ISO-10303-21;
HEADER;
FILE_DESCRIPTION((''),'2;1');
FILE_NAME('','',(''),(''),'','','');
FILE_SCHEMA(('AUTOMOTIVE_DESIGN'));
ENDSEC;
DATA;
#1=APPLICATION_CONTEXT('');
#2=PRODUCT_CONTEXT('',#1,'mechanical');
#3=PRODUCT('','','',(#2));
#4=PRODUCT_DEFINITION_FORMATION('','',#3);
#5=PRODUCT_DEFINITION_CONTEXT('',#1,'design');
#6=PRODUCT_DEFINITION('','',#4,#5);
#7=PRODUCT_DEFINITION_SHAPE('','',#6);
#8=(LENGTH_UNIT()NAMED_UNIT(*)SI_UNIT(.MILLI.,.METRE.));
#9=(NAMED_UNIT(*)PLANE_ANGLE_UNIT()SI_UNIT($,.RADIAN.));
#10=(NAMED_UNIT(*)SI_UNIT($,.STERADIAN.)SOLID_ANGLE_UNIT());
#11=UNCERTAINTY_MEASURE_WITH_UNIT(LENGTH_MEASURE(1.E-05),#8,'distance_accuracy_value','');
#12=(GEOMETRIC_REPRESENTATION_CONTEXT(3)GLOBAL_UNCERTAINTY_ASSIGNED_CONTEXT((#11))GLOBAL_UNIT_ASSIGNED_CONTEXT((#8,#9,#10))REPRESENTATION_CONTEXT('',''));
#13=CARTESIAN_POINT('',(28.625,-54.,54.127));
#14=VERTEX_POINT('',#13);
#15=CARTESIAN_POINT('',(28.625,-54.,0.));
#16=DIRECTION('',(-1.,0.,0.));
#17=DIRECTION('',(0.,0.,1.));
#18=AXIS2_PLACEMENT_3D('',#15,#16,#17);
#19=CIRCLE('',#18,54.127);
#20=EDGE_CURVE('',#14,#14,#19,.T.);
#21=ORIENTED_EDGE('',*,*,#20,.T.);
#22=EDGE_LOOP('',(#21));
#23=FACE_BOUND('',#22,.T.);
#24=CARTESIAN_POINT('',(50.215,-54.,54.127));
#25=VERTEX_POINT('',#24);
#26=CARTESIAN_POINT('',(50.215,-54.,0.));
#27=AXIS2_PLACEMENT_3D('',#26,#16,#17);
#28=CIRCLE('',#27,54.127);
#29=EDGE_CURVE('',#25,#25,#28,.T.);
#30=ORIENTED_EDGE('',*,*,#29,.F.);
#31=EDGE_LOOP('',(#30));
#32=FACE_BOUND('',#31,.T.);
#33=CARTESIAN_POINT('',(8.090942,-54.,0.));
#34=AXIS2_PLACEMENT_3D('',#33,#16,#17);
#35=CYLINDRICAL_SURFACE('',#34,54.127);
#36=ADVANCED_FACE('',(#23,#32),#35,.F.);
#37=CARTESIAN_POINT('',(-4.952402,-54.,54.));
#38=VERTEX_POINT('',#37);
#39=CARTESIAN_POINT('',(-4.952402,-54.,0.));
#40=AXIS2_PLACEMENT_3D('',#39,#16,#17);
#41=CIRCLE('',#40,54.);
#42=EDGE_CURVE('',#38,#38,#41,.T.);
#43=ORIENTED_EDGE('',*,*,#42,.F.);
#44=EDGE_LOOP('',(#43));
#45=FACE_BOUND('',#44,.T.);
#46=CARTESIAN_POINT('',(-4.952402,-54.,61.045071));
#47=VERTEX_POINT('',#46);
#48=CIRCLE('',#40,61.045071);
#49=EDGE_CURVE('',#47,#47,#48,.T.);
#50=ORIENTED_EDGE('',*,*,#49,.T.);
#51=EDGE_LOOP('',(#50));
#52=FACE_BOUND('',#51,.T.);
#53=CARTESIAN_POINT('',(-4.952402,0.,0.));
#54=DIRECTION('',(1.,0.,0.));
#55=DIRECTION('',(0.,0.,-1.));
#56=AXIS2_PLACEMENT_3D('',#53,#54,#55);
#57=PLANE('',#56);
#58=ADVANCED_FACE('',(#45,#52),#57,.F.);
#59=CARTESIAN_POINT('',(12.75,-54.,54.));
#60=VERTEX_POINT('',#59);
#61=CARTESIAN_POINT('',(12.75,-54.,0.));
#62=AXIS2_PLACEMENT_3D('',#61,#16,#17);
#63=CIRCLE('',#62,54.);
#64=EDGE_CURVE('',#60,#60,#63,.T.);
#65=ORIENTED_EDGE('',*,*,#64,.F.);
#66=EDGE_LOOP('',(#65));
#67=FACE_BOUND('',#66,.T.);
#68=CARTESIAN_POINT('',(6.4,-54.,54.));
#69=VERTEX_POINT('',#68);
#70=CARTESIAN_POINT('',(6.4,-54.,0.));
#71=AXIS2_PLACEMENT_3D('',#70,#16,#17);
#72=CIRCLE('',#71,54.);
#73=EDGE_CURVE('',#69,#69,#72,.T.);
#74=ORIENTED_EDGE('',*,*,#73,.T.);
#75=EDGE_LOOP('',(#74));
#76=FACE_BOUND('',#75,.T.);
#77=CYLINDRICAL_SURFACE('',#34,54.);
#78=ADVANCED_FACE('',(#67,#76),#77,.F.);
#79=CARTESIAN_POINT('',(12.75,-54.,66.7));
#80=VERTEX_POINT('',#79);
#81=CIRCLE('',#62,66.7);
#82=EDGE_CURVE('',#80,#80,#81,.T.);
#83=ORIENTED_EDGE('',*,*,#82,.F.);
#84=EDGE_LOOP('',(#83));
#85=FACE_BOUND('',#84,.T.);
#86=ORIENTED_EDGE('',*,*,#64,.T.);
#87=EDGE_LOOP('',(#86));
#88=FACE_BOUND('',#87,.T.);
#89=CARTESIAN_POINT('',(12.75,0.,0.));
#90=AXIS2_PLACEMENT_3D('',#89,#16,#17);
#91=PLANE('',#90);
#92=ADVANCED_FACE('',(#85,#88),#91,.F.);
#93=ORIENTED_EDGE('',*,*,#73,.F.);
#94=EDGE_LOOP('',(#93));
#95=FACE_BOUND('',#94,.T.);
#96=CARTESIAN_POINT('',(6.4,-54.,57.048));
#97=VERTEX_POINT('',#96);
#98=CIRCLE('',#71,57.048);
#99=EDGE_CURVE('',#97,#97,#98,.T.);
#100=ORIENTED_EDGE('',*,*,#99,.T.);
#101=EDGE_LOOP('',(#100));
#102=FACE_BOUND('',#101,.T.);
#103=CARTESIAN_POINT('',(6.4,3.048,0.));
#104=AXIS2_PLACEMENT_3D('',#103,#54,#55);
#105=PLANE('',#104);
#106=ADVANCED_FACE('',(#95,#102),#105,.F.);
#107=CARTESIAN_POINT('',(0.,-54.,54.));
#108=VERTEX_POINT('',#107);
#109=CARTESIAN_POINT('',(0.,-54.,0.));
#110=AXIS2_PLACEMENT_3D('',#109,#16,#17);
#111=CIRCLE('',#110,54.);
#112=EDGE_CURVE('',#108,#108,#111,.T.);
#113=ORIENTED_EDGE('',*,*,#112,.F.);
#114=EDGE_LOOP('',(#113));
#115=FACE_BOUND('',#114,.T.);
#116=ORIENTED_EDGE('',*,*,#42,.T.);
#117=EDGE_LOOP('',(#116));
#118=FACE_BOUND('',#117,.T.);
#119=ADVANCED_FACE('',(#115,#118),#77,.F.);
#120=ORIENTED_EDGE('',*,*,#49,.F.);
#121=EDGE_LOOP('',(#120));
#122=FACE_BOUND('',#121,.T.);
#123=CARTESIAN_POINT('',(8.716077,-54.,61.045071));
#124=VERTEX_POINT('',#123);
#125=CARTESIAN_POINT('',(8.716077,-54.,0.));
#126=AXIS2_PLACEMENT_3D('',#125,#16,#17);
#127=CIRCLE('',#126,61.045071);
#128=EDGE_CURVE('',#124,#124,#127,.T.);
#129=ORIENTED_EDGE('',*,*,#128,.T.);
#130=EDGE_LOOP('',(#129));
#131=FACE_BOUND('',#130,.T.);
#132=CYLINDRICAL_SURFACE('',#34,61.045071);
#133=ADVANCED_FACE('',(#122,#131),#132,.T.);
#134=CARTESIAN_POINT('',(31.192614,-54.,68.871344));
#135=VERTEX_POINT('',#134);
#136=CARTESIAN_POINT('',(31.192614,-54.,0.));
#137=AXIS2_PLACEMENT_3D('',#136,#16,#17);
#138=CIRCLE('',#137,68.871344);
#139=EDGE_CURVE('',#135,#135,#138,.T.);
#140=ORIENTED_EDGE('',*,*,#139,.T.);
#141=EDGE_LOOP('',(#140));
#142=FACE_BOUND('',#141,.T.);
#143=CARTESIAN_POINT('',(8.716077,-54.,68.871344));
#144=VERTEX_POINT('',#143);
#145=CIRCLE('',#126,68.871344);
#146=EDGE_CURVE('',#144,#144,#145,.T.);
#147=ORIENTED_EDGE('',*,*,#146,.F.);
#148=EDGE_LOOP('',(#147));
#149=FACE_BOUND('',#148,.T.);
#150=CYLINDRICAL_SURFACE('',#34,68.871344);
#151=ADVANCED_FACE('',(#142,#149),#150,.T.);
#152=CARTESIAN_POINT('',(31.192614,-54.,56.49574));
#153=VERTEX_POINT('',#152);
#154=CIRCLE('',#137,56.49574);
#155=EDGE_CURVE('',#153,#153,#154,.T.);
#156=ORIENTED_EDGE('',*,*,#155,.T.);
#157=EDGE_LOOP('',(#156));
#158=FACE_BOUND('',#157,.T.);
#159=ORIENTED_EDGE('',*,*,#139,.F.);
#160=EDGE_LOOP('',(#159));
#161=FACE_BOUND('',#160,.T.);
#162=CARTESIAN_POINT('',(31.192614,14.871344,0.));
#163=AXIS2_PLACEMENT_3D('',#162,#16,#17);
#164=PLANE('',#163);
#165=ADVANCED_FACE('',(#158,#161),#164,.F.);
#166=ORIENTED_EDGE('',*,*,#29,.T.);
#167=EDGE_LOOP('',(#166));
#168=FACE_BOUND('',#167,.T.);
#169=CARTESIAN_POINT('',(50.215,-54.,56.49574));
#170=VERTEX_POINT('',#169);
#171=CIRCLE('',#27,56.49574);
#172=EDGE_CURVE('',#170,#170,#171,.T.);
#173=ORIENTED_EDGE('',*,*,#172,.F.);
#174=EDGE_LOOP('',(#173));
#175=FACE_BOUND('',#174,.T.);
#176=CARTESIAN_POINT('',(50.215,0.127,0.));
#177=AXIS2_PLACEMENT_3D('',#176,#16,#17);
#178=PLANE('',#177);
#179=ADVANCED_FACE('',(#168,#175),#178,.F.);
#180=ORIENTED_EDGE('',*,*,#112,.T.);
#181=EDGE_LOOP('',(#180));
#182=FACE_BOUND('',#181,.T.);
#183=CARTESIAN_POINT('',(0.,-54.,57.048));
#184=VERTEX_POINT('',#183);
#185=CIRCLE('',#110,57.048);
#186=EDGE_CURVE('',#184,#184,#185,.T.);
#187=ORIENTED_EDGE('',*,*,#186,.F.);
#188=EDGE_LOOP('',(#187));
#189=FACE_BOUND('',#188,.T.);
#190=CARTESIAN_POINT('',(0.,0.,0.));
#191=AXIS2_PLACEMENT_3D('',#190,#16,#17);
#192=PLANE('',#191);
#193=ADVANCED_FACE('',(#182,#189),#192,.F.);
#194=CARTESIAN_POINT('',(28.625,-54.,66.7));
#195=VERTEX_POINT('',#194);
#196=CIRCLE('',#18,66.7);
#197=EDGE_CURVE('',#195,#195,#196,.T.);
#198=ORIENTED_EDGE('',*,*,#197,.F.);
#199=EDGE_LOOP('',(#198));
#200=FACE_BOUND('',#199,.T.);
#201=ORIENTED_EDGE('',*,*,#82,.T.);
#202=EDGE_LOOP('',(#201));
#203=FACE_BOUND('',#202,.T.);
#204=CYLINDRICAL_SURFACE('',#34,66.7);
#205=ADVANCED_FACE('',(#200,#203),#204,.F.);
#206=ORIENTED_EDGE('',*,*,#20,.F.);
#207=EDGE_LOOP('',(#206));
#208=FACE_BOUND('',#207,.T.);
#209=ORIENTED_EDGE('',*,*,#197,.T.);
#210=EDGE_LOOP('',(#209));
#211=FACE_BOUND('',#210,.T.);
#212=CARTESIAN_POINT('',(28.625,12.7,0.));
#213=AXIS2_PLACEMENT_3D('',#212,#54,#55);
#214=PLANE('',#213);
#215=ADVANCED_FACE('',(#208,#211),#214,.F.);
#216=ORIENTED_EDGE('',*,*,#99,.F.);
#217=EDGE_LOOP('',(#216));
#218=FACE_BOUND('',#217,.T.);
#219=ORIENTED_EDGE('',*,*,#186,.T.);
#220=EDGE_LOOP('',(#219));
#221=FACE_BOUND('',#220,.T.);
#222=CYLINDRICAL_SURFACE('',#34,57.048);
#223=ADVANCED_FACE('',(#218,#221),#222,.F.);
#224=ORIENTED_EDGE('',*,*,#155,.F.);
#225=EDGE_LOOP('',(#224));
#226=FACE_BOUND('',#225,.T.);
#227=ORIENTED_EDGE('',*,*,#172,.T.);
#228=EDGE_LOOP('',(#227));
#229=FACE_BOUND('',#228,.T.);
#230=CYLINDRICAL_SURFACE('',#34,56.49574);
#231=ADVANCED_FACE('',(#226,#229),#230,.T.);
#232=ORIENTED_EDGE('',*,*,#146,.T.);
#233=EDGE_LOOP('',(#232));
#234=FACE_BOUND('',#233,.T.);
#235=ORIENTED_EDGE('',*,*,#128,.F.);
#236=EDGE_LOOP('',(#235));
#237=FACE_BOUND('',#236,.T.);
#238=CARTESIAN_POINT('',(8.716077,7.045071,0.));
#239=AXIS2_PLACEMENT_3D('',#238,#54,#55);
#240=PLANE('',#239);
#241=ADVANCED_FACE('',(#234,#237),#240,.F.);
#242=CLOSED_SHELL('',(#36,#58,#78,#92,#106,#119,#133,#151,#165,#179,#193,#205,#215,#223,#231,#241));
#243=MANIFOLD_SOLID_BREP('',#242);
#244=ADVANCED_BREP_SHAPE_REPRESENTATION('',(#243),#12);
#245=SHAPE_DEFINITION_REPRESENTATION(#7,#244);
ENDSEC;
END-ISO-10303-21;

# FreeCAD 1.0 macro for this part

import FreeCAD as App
import Part
import Sketcher
Q = App.Units.Quantity

doc = App.newDocument("Part")
body = doc.addObject("PartDesign::Body", "Body")

sketch1 = body.newObject("Sketcher::SketchObject", "Sketch")
sketch1.AttachmentSupport = (doc.getObject("XY_Plane"), [""])
sketch1.MapMode = "FlatFace"
sketch1.addGeometry(Part.LineSegment(App.Vector(0, 0, 0), App.Vector(0, 3, 0)), False)
sketch1.addGeometry(Part.LineSegment(App.Vector(0, 3, 0), App.Vector(6.4, 3, 0)), False)
sketch1.addGeometry(Part.LineSegment(App.Vector(6.4, 3, 0), App.Vector(6.4, 0, 0)), False)
sketch1.addGeometry(Part.LineSegment(App.Vector(6.4, 0, 0), App.Vector(12.8, 0, 0)), False)
sketch1.addGeometry(Part.LineSegment(App.Vector(12.8, 0, 0), App.Vector(12.8, 12.7, 0)), False)
sketch1.addGeometry(Part.LineSegment(App.Vector(12.8, 12.7, 0), App.Vector(28.6, 12.7, 0)), False)
sketch1.addGeometry(Part.LineSegment(App.Vector(28.6, 12.7, 0), App.Vector(28.6, 0.1, 0)), False)
sketch1.addGeometry(Part.LineSegment(App.Vector(28.6, 0.1, 0), App.Vector(50.2, 0.1, 0)), False)
sketch1.addGeometry(Part.LineSegment(App.Vector(50.2, 0.1, 0), App.Vector(50.2, 2.5, 0)), False)
sketch1.addGeometry(Part.LineSegment(App.Vector(50.2, 2.5, 0), App.Vector(31.2, 2.5, 0)), False)
sketch1.addGeometry(Part.LineSegment(App.Vector(31.2, 2.5, 0), App.Vector(31.2, 14.9, 0)), False)
sketch1.addGeometry(Part.LineSegment(App.Vector(31.2, 14.9, 0), App.Vector(8.7, 14.9, 0)), False)
sketch1.addGeometry(Part.LineSegment(App.Vector(8.7, 14.9, 0), App.Vector(8.7, 7, 0)), False)
sketch1.addGeometry(Part.LineSegment(App.Vector(8.7, 7, 0), App.Vector(-5, 7, 0)), False)
sketch1.addGeometry(Part.LineSegment(App.Vector(-5, 7, 0), App.Vector(-5, 0, 0)), False)
sketch1.addGeometry(Part.LineSegment(App.Vector(-5, 0, 0), App.Vector(0, 0, 0)), False)
sketch1.addGeometry(Part.LineSegment(App.Vector(-5, -54, 0), App.Vector(50.2, -54, 0)), True)
sketch1.addConstraint(Sketcher.Constraint("Coincident", 0, 2, 1, 1))
sketch1.addConstraint(Sketcher.Constraint("Coincident", 1, 2, 2, 1))
sketch1.addConstraint(Sketcher.Constraint("Coincident", 2, 2, 3, 1))
sketch1.addConstraint(Sketcher.Constraint("Coincident", 3, 2, 4, 1))
sketch1.addConstraint(Sketcher.Constraint("Coincident", 4, 2, 5, 1))
sketch1.addConstraint(Sketcher.Constraint("Coincident", 5, 2, 6, 1))
sketch1.addConstraint(Sketcher.Constraint("Coincident", 6, 2, 7, 1))
sketch1.addConstraint(Sketcher.Constraint("Coincident", 7, 2, 8, 1))
sketch1.addConstraint(Sketcher.Constraint("Coincident", 8, 2, 9, 1))
sketch1.addConstraint(Sketcher.Constraint("Coincident", 9, 2, 10, 1))
sketch1.addConstraint(Sketcher.Constraint("Coincident", 10, 2, 11, 1))
sketch1.addConstraint(Sketcher.Constraint("Coincident", 11, 2, 12, 1))
sketch1.addConstraint(Sketcher.Constraint("Coincident", 12, 2, 13, 1))
sketch1.addConstraint(Sketcher.Constraint("Coincident", 13, 2, 14, 1))
sketch1.addConstraint(Sketcher.Constraint("Coincident", 14, 2, 15, 1))
sketch1.addConstraint(Sketcher.Constraint("Coincident", 15, 2, 0, 1))
sketch1.addConstraint(Sketcher.Constraint("Vertical", 0))
sketch1.addConstraint(Sketcher.Constraint("Horizontal", 1))
sketch1.addConstraint(Sketcher.Constraint("Vertical", 2))
sketch1.addConstraint(Sketcher.Constraint("Horizontal", 3))
sketch1.addConstraint(Sketcher.Constraint("Vertical", 4))
sketch1.addConstraint(Sketcher.Constraint("Horizontal", 5))
sketch1.addConstraint(Sketcher.Constraint("Vertical", 6))
sketch1.addConstraint(Sketcher.Constraint("Horizontal", 7))
sketch1.addConstraint(Sketcher.Constraint("Vertical", 8))
sketch1.addConstraint(Sketcher.Constraint("Horizontal", 9))
sketch1.addConstraint(Sketcher.Constraint("Vertical", 10))
sketch1.addConstraint(Sketcher.Constraint("Horizontal", 11))
sketch1.addConstraint(Sketcher.Constraint("Vertical", 12))
sketch1.addConstraint(Sketcher.Constraint("Horizontal", 13))
sketch1.addConstraint(Sketcher.Constraint("Vertical", 14))
sketch1.addConstraint(Sketcher.Constraint("Horizontal", 15))
sketch1.addConstraint(Sketcher.Constraint("Horizontal", 16))
sketch1.addConstraint(Sketcher.Constraint("Coincident", 15, 2, -1, 1))
sketch1.addConstraint(Sketcher.Constraint("PointOnObject", 2, 2, -1))
sketch1.addConstraint(Sketcher.Constraint("Vertical", 14, 2, 16, 1))
sketch1.addConstraint(Sketcher.Constraint("Vertical", 8, 2, 16, 2))
sketch1.addConstraint(Sketcher.Constraint("DistanceY", 4, 1, 4, 2, Q("0.5 in")))
sketch1.addConstraint(Sketcher.Constraint("DistanceX", 3, 1, 3, 2, Q("0.25 in")))
sketch1.addConstraint(Sketcher.Constraint("DistanceX", 7, 1, 7, 2, Q("0.85 in")))
sketch1.addConstraint(Sketcher.Constraint("DistanceY", 0, 1, 0, 2, Q("0.12 in")))
sketch1.addConstraint(Sketcher.Constraint("DistanceX", 5, 1, 5, 2, Q("0.625 in")))
sketch1.addConstraint(Sketcher.Constraint("DistanceY", 6, 2, 6, 1, Q("0.495 in")))
sketch1.addConstraint(Sketcher.Constraint("DistanceX", 1, 1, 1, 2, Q("6.4 mm")))
sketch1.addConstraint(Sketcher.Constraint("DistanceX", 15, 1, 15, 2, Q("4.952402 mm")))
sketch1.addConstraint(Sketcher.Constraint("DistanceX", 13, 2, 13, 1, Q("13.668479 mm")))
sketch1.addConstraint(Sketcher.Constraint("DistanceY", 8, 1, 8, 2, Q("2.36874 mm")))
sketch1.addConstraint(Sketcher.Constraint("DistanceY", 14, 2, 14, 1, Q("7.045071 mm")))
sketch1.addConstraint(Sketcher.Constraint("DistanceY", 16, 1, -1, 1, Q("54 mm")))
sketch1.addConstraint(Sketcher.Constraint("DistanceX", 9, 2, 9, 1, Q("19.022386 mm")))
sketch1.addConstraint(Sketcher.Constraint("DistanceY", 10, 1, 10, 2, Q("12.375604 mm")))
revolution = body.newObject("PartDesign::Revolution", "Revolution")
revolution.Profile = sketch1
revolution.ReferenceAxis = (sketch1, ["Axis0"])
revolution.Angle = 360

doc.recompute()
